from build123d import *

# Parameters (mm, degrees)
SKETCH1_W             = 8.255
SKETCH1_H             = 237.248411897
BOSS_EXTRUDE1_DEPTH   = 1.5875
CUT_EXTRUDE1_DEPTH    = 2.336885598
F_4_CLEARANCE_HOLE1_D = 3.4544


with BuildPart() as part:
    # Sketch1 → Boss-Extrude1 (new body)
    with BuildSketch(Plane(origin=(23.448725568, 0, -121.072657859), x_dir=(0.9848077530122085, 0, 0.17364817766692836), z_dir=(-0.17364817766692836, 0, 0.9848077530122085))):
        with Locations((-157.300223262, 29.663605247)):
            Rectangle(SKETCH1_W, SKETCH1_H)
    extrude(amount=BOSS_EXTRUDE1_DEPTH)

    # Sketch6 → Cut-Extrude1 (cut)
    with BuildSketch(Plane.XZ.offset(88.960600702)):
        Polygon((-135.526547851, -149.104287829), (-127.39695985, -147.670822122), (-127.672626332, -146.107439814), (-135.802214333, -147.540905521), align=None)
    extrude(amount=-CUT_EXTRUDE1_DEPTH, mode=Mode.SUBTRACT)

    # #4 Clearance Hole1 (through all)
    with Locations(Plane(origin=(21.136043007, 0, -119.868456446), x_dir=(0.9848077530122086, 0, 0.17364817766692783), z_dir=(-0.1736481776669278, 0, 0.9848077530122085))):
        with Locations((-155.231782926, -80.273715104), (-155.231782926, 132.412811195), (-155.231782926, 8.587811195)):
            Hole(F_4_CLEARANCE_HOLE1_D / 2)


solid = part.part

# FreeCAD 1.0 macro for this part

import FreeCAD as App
import Part
import Sketcher
Q = App.Units.Quantity

doc = App.newDocument("Part")
params = doc.addObject("Spreadsheet::Sheet", "Params")
for row, (alias, value) in enumerate([
    ("sketch1_width", "0.325 in"),
    ("pad1_length", "0.0625 in"),
    ("sketch2_length", "0.325 in"),
    ("sketch2_length2", "0.0625 in"),
    ("pocket1_length", "2.336886 mm"),
    ("sketch3_diameter", "0.136 in"),
    ("hole_diameter", "0.136 in"),
], start=1):
    params.set(f"A{row}", alias)
    params.set(f"B{row}", "=" + value)
    params.setAlias(f"B{row}", alias)

body = doc.addObject("PartDesign::Body", "Body")

sketch1 = body.newObject("Sketcher::SketchObject", "Sketch")
sketch1.Placement = App.Placement(App.Vector(23.448726, 0, -121.072658), App.Rotation(App.Vector(0.984807753, 0, 0.173648178), App.Vector(0, 1, 0), App.Vector(-0.173648178, 0, 0.984807753), "ZXY"))
sketch1.addGeometry([
    Part.LineSegment(App.Vector(-161.427723, 148.287811, 0), App.Vector(-161.427723, -88.960601, 0)),
    Part.LineSegment(App.Vector(-161.427723, -88.960601, 0), App.Vector(-153.172723, -88.960601, 0)),
    Part.LineSegment(App.Vector(-153.172723, -88.960601, 0), App.Vector(-153.172723, 148.287811, 0)),
    Part.LineSegment(App.Vector(-153.172723, 148.287811, 0), App.Vector(-161.427723, 148.287811, 0)),
], False)
sketch1.addConstraint([
    Sketcher.Constraint("Coincident", 0, 2, 1, 1),
    Sketcher.Constraint("Coincident", 1, 2, 2, 1),
    Sketcher.Constraint("Coincident", 2, 2, 3, 1),
    Sketcher.Constraint("Coincident", 3, 2, 0, 1),
    Sketcher.Constraint("Vertical", 0),
    Sketcher.Constraint("Horizontal", 1),
    Sketcher.Constraint("Vertical", 2),
    Sketcher.Constraint("Horizontal", 3),
    Sketcher.Constraint("DistanceX", 1, 1, 1, 2, Q("0.325 in")),
    Sketcher.Constraint("DistanceY", 0, 2, 0, 1, 237.248412),
    Sketcher.Constraint("DistanceY", 0, 2, -1, 1, 88.960601),
    Sketcher.Constraint("DistanceX", 0, 2, -1, 1, 161.427723),
])
sketch1.setExpression("Constraints[8]", "Params.sketch1_width")
pad1 = body.newObject("PartDesign::Pad", "Pad")
pad1.Profile = sketch1
pad1.setExpression("Length", "Params.pad1_length")

sketch2 = body.newObject("Sketcher::SketchObject", "Sketch001")
sketch2.AttachmentSupport = (doc.getObject("XZ_Plane"), [""])
sketch2.MapMode = "FlatFace"
sketch2.AttachmentOffset = App.Placement(App.Vector(0, 0, 88.960601), App.Rotation())
sketch2.addGeometry([
    Part.LineSegment(App.Vector(-135.526548, -149.104288, 0), App.Vector(-127.39696, -147.670822, 0)),
    Part.LineSegment(App.Vector(-127.39696, -147.670822, 0), App.Vector(-127.672626, -146.10744, 0)),
    Part.LineSegment(App.Vector(-127.672626, -146.10744, 0), App.Vector(-135.802214, -147.540906, 0)),
    Part.LineSegment(App.Vector(-135.802214, -147.540906, 0), App.Vector(-135.526548, -149.104288, 0)),
], False)
sketch2.addConstraint([
    Sketcher.Constraint("Coincident", 0, 2, 1, 1),
    Sketcher.Constraint("Coincident", 1, 2, 2, 1),
    Sketcher.Constraint("Coincident", 2, 2, 3, 1),
    Sketcher.Constraint("Coincident", 3, 2, 0, 1),
    Sketcher.Constraint("Perpendicular", 0, 1),
    Sketcher.Constraint("Perpendicular", 1, 2),
    Sketcher.Constraint("Perpendicular", 2, 3),
    Sketcher.Constraint("Angle", 0, Q("10 deg")),
    Sketcher.Constraint("Distance", 0, Q("0.325 in")),
    Sketcher.Constraint("Distance", 1, Q("0.0625 in")),
    Sketcher.Constraint("DistanceX", 0, 2, -1, 1, 127.39696),
    Sketcher.Constraint("DistanceY", 1, 2, -1, 1, 146.10744),
])
sketch2.setExpression("Constraints[8]", "Params.sketch2_length")
sketch2.setExpression("Constraints[9]", "Params.sketch2_length2")
pocket1 = body.newObject("PartDesign::Pocket", "Pocket")
pocket1.Profile = sketch2
pocket1.setExpression("Length", "Params.pocket1_length")

sketch3 = body.newObject("Sketcher::SketchObject", "Sketch002")
sketch3.Placement = App.Placement(App.Vector(21.136043, 0, -119.868456), App.Rotation(App.Vector(0.984807753, 0, 0.173648178), App.Vector(0, 1, 0), App.Vector(-0.173648178, 0, 0.984807753), "ZXY"))
sketch3.addGeometry([
    Part.Circle(App.Vector(-155.231783, -80.273715, 0), App.Vector(0, 0, 1), 1.7272),
    Part.Circle(App.Vector(-155.231783, 132.412811, 0), App.Vector(0, 0, 1), 1.7272),
    Part.Circle(App.Vector(-155.231783, 8.587811, 0), App.Vector(0, 0, 1), 1.7272),
], False)
sketch3.addConstraint([
    Sketcher.Constraint("Equal", 0, 1),
    Sketcher.Constraint("Equal", 1, 2),
    Sketcher.Constraint("Vertical", 0, 3, 1, 3),
    Sketcher.Constraint("Vertical", 1, 3, 2, 3),
    Sketcher.Constraint("Diameter", 0, Q("0.136 in")),
    Sketcher.Constraint("DistanceY", 2, 3, 1, 3, Q("4.875 in")),
    Sketcher.Constraint("DistanceY", -1, 1, 1, 3, 132.412811),
    Sketcher.Constraint("DistanceX", 0, 3, -1, 1, 155.231783),
    Sketcher.Constraint("DistanceY", 0, 3, -1, 1, 80.273715),
])
sketch3.setExpression("Constraints[4]", "Params.sketch3_diameter")
doc.recompute()
hole = body.newObject("PartDesign::Hole", "Hole")
hole.Profile = sketch3
hole.ThreadType = "None"
hole.setExpression("Diameter", "Params.hole_diameter")
hole.DepthType = "ThroughAll"

doc.recompute()
